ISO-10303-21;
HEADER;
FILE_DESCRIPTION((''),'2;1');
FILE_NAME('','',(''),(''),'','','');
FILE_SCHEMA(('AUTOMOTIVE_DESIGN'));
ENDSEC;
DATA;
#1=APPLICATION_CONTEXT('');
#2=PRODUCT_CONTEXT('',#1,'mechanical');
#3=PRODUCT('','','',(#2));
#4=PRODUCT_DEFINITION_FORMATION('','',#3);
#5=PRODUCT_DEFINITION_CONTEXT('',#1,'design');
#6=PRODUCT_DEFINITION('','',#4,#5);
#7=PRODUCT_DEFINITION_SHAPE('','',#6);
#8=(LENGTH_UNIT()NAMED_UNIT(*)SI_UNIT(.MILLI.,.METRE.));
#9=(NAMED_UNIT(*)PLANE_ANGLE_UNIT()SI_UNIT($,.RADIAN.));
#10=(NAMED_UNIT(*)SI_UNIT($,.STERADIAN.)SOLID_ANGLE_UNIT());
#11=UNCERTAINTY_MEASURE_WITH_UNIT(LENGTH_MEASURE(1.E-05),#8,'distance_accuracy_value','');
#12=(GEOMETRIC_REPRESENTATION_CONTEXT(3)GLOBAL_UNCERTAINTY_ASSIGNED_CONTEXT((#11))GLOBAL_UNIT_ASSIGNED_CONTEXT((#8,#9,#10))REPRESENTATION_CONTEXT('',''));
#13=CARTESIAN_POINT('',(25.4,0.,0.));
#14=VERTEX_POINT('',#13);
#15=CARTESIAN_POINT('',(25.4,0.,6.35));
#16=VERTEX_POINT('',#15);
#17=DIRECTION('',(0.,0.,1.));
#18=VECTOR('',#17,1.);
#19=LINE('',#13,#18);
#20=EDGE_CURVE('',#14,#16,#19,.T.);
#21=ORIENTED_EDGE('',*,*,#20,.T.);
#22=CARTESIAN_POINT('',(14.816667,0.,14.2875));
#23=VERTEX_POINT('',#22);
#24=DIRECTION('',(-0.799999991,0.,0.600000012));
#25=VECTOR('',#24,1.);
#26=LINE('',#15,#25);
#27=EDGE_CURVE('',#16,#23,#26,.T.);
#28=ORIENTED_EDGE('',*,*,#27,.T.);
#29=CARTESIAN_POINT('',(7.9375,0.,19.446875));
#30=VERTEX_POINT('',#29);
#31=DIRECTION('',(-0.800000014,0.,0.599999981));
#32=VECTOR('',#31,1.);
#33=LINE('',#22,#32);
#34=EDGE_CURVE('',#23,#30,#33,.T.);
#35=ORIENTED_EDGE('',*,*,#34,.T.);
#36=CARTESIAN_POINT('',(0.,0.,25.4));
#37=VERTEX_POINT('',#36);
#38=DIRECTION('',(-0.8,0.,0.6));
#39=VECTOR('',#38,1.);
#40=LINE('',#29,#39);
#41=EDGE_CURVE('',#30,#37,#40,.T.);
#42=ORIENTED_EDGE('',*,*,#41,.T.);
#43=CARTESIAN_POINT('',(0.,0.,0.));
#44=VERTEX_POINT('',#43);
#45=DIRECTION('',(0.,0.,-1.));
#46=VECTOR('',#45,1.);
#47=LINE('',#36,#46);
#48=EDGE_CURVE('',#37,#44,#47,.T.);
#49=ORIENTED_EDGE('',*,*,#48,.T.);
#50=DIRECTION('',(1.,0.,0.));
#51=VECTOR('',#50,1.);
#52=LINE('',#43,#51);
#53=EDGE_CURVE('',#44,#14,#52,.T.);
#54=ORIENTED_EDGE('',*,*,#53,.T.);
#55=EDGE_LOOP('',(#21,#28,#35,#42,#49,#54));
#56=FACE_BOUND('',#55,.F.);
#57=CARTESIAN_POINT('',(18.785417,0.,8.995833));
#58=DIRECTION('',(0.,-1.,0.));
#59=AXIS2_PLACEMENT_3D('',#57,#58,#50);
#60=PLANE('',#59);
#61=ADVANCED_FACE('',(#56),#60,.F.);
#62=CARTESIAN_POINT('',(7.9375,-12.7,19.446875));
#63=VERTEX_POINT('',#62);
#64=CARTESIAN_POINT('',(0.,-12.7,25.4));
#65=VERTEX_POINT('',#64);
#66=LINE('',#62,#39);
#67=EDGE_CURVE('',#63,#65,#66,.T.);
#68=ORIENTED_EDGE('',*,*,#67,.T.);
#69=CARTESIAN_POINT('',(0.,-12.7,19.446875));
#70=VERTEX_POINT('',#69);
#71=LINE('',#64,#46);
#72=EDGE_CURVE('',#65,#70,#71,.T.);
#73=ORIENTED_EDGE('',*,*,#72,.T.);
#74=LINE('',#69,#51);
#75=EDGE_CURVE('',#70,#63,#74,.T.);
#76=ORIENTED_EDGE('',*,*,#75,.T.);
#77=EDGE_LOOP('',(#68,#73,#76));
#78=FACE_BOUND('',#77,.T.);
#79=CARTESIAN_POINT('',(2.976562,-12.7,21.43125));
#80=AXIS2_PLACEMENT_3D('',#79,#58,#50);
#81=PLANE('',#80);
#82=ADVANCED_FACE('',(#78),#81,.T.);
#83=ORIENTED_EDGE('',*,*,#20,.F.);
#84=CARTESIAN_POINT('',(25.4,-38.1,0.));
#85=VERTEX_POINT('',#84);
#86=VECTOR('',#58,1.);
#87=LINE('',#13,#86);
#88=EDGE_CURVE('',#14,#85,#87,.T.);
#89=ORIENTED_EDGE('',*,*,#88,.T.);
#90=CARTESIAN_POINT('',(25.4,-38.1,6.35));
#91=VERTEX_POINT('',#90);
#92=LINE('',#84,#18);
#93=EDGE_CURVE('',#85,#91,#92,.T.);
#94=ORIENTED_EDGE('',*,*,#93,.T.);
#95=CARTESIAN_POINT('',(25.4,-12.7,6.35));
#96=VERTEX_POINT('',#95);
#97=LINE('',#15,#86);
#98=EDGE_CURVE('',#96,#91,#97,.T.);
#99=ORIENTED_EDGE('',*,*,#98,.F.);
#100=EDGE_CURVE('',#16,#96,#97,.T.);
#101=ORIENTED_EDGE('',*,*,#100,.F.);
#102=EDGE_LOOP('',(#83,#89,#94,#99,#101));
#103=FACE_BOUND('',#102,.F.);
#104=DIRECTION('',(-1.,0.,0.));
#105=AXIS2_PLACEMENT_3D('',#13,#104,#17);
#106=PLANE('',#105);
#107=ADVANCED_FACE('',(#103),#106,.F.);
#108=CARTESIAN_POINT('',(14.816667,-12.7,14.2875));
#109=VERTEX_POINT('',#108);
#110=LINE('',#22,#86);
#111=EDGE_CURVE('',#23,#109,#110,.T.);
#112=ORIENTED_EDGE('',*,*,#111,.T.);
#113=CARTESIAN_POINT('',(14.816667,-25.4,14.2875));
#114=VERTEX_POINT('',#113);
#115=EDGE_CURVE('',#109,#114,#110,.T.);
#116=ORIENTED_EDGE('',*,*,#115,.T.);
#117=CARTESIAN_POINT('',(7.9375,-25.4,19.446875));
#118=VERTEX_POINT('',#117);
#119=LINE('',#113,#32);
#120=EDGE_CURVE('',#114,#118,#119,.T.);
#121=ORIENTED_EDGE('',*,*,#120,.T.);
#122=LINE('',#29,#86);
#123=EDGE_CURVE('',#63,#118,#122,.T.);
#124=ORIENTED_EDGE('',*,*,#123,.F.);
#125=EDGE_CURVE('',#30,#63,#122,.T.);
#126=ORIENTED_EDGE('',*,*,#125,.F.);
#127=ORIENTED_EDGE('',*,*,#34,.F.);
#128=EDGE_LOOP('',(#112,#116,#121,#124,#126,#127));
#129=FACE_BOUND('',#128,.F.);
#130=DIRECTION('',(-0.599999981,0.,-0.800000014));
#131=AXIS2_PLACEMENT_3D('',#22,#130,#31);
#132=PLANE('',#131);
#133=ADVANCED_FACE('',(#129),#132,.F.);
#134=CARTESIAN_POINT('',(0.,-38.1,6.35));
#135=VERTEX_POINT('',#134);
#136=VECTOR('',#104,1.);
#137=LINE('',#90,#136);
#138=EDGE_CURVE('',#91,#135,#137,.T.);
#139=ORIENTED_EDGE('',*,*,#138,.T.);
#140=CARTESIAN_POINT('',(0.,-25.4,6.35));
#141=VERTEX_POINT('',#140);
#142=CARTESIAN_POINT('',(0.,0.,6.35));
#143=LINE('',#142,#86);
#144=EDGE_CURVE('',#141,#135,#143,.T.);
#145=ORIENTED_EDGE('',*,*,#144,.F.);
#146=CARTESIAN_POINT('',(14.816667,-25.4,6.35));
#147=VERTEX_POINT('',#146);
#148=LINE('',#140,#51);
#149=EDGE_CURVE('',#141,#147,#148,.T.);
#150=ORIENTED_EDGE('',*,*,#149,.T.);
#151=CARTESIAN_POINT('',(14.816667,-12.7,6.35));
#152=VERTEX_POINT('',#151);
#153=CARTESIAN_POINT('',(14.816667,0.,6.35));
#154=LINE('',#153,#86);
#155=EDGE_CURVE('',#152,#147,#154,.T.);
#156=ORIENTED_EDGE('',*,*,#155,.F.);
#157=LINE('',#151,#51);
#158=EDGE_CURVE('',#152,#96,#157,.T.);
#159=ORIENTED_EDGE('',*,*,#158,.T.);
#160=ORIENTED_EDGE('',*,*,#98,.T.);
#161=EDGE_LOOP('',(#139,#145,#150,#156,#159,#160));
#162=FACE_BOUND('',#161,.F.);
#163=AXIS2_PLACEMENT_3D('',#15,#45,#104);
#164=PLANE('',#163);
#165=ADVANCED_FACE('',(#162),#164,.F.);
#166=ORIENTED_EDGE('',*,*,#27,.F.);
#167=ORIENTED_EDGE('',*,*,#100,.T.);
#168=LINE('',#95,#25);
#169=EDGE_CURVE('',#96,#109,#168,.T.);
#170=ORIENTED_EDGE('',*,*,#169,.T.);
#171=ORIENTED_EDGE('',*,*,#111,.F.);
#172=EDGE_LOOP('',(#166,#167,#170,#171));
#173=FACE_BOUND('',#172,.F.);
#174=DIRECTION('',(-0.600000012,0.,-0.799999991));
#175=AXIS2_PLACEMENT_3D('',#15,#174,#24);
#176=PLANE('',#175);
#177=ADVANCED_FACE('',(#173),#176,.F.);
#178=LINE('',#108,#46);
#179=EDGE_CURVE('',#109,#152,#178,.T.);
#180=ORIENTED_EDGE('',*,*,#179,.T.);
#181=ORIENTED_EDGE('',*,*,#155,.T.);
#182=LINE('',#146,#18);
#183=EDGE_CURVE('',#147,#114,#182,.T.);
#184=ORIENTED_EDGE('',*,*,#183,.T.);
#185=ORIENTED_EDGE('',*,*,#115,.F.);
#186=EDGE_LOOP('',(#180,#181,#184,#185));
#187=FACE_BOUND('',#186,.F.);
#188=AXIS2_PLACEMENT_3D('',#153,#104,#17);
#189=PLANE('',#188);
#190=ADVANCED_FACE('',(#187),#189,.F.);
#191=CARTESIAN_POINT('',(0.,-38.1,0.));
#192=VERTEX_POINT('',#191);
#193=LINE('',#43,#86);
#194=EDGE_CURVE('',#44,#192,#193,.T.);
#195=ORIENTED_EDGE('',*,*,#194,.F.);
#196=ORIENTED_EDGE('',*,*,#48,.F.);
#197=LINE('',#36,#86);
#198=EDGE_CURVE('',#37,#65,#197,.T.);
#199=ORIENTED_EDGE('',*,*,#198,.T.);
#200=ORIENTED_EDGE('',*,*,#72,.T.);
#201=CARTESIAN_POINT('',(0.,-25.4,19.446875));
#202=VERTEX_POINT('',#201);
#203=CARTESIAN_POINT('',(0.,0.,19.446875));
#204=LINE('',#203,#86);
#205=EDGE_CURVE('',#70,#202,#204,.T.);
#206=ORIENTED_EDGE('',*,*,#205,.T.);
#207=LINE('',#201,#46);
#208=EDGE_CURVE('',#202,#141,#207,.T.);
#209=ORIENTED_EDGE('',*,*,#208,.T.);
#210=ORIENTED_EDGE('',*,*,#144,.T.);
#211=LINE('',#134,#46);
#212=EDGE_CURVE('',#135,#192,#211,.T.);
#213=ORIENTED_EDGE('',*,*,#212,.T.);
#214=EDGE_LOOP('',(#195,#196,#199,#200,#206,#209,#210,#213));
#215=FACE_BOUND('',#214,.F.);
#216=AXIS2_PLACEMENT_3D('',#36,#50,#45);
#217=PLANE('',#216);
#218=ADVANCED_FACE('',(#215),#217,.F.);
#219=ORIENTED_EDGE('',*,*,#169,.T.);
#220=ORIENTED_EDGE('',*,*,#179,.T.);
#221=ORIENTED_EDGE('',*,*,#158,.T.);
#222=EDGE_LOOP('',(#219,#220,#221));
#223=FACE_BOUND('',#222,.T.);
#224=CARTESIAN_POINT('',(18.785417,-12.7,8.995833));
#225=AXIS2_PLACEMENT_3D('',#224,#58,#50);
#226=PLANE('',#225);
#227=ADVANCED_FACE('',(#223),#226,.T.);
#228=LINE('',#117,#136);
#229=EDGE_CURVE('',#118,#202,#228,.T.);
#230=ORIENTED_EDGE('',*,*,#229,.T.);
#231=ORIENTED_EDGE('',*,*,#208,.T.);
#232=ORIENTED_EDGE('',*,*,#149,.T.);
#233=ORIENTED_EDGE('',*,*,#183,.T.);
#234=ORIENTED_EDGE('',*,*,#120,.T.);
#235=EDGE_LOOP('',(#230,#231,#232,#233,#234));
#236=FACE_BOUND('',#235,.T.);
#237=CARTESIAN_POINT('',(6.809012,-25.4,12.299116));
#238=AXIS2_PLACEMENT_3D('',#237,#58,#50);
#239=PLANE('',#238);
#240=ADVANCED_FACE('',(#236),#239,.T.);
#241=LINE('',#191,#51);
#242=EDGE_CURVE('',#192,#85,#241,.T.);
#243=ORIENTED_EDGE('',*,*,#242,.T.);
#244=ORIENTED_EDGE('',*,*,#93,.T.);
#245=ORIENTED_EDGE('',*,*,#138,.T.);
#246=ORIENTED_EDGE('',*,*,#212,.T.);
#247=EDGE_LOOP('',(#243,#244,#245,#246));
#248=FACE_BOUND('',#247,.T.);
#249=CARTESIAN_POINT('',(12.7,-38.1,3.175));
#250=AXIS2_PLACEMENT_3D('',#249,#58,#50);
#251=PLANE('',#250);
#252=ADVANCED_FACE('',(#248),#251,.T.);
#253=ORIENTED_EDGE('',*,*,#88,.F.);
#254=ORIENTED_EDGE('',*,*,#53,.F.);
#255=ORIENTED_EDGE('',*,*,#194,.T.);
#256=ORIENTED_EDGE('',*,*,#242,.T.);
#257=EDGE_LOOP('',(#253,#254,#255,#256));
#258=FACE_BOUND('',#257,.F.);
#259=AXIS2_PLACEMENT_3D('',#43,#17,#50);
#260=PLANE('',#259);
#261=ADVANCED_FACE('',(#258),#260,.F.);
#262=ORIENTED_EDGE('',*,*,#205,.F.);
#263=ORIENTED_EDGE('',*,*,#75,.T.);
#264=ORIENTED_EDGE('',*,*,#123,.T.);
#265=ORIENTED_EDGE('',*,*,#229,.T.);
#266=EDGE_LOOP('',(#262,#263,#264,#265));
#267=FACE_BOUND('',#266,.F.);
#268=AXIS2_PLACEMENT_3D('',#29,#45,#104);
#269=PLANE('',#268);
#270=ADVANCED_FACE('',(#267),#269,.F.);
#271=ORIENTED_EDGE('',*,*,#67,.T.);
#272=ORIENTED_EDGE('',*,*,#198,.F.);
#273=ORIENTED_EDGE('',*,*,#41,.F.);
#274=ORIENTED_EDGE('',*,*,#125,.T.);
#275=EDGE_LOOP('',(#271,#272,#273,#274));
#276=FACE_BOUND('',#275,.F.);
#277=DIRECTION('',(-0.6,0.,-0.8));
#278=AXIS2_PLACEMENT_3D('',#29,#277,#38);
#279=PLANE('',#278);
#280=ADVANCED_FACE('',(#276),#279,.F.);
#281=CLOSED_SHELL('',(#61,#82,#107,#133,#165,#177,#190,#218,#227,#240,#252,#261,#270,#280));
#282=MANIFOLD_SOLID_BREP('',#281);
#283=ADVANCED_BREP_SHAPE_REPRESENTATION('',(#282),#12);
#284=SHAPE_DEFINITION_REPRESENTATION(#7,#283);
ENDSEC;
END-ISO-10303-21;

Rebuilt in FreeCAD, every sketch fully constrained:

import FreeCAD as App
import Part
import Sketcher

V = App.Vector
Q = App.Units.Quantity

doc = App.newDocument("Part")
body = doc.addObject("PartDesign::Body", "Body")

# Sketch on XZ plane
sketch1 = doc.addObject("Sketcher::SketchObject", "Sketch")
body.addObject(sketch1)
sketch1.AttachmentSupport = (doc.XZ_Plane, [""])
sketch1.MapMode = "FlatFace"
sketch1.addGeometry([
    Part.LineSegment(V(0, 6.35, 0), V(0, 0, 0)),
    Part.LineSegment(V(0, 0, 0), V(25.4, 0, 0)),
    Part.LineSegment(V(25.4, 0, 0), V(25.4, 6.35, 0)),
    Part.LineSegment(V(25.4, 6.35, 0), V(0, 6.35, 0)),
], False)
sketch1.addConstraint([
    Sketcher.Constraint("Coincident", 0, 2, 1, 1),
    Sketcher.Constraint("Coincident", 1, 2, 2, 1),
    Sketcher.Constraint("Coincident", 2, 2, 3, 1),
    Sketcher.Constraint("Coincident", 3, 2, 0, 1),
    Sketcher.Constraint("Vertical", 0),
    Sketcher.Constraint("Horizontal", 1),
    Sketcher.Constraint("Vertical", 2),
    Sketcher.Constraint("Horizontal", 3),
    Sketcher.Constraint("Coincident", 0, 2, -1, 1),
    Sketcher.Constraint("DistanceX", 1, 1, 1, 2, Q("1 in")),
    Sketcher.Constraint("DistanceY", 0, 2, 0, 1, Q("0.25 in")),
])
pad1 = doc.addObject("PartDesign::Pad", "Pad")
body.addObject(pad1)
pad1.Profile = sketch1
pad1.Length = Q("1.5 in")

# Sketch on XZ plane
sketch2 = doc.addObject("Sketcher::SketchObject", "Sketch001")
body.addObject(sketch2)
sketch2.AttachmentSupport = (doc.XZ_Plane, [""])
sketch2.MapMode = "FlatFace"
sketch2.addGeometry([
    Part.LineSegment(V(0, 19.446875, 0), V(0, 6.35, 0)),  # 0
    Part.LineSegment(V(0, 6.35, 0), V(14.816667, 6.35, 0)),  # 1
    Part.LineSegment(V(14.816667, 6.35, 0), V(14.816667, 14.2875, 0)),  # 2
    Part.LineSegment(V(14.816667, 14.2875, 0), V(7.9375, 19.446875, 0)),  # 3
    Part.LineSegment(V(7.9375, 19.446875, 0), V(0, 19.446875, 0)),  # 4
], False)
sketch2.addConstraint([
    Sketcher.Constraint("Coincident", 0, 2, 1, 1),
    Sketcher.Constraint("Coincident", 1, 2, 2, 1),
    Sketcher.Constraint("Coincident", 2, 2, 3, 1),
    Sketcher.Constraint("Coincident", 3, 2, 4, 1),
    Sketcher.Constraint("Coincident", 4, 2, 0, 1),
    Sketcher.Constraint("Vertical", 0),
    Sketcher.Constraint("Horizontal", 1),
    Sketcher.Constraint("Vertical", 2),
    Sketcher.Constraint("Horizontal", 4),
    Sketcher.Constraint("PointOnObject", 0, 2, -2),
    Sketcher.Constraint("Equal", 4, 2),
    Sketcher.Constraint("DistanceX", 4, 2, 4, 1, Q("0.3125 in")),
    Sketcher.Constraint("DistanceY", 0, 2, 0, 1, Q("0.515625 in")),
    Sketcher.Constraint("DistanceY", -1, 1, 0, 2, Q("0.25 in")),
    Sketcher.Constraint("Distance", 3, Q("8.598959 mm")),
])
pad2 = doc.addObject("PartDesign::Pad", "Pad001")
body.addObject(pad2)
pad2.Profile = sketch2
pad2.Length = Q("1 in")

# Sketch on XZ plane
sketch3 = doc.addObject("Sketcher::SketchObject", "Sketch002")
body.addObject(sketch3)
sketch3.AttachmentSupport = (doc.XZ_Plane, [""])
sketch3.MapMode = "FlatFace"
sketch3.addGeometry([
    Part.LineSegment(V(0, 25.4, 0), V(0, 19.446875, 0)),
    Part.LineSegment(V(0, 19.446875, 0), V(7.9375, 19.446875, 0)),
    Part.LineSegment(V(7.9375, 19.446875, 0), V(0, 25.4, 0)),
], False)
sketch3.addConstraint([
    Sketcher.Constraint("Coincident", 0, 2, 1, 1),
    Sketcher.Constraint("Coincident", 1, 2, 2, 1),
    Sketcher.Constraint("Coincident", 2, 2, 0, 1),
    Sketcher.Constraint("Vertical", 0),
    Sketcher.Constraint("Horizontal", 1),
    Sketcher.Constraint("PointOnObject", 0, 2, -2),
    Sketcher.Constraint("DistanceY", -1, 1, 2, 2, Q("1 in")),
    Sketcher.Constraint("DistanceX", 1, 1, 1, 2, Q("0.3125 in")),
    Sketcher.Constraint("DistanceY", 0, 2, 0, 1, Q("0.234375 in")),
])
pad3 = doc.addObject("PartDesign::Pad", "Pad002")
body.addObject(pad3)
pad3.Profile = sketch3
pad3.Length = Q("0.5 in")

# Sketch on XZ plane
sketch4 = doc.addObject("Sketcher::SketchObject", "Sketch003")
body.addObject(sketch4)
sketch4.AttachmentSupport = (doc.XZ_Plane, [""])
sketch4.MapMode = "FlatFace"
sketch4.addGeometry([
    Part.LineSegment(V(14.816667, 14.2875, 0), V(14.816667, 6.35, 0)),
    Part.LineSegment(V(14.816667, 6.35, 0), V(25.4, 6.35, 0)),
    Part.LineSegment(V(25.4, 6.35, 0), V(14.816667, 14.2875, 0)),
], False)
sketch4.addConstraint([
    Sketcher.Constraint("Coincident", 0, 2, 1, 1),
    Sketcher.Constraint("Coincident", 1, 2, 2, 1),
    Sketcher.Constraint("Coincident", 2, 2, 0, 1),
    Sketcher.Constraint("Vertical", 0),
    Sketcher.Constraint("Horizontal", 1),
    Sketcher.Constraint("DistanceX", -1, 1, 1, 2, Q("1 in")),
    Sketcher.Constraint("DistanceY", 0, 2, 0, 1, Q("0.3125 in")),
    Sketcher.Constraint("DistanceY", -1, 1, 0, 2, Q("0.25 in")),
    Sketcher.Constraint("DistanceX", 1, 1, 1, 2, Q("10.583333 mm")),
])
pad4 = doc.addObject("PartDesign::Pad", "Pad003")
body.addObject(pad4)
pad4.Profile = sketch4
pad4.Length = Q("0.5 in")

doc.recompute()
